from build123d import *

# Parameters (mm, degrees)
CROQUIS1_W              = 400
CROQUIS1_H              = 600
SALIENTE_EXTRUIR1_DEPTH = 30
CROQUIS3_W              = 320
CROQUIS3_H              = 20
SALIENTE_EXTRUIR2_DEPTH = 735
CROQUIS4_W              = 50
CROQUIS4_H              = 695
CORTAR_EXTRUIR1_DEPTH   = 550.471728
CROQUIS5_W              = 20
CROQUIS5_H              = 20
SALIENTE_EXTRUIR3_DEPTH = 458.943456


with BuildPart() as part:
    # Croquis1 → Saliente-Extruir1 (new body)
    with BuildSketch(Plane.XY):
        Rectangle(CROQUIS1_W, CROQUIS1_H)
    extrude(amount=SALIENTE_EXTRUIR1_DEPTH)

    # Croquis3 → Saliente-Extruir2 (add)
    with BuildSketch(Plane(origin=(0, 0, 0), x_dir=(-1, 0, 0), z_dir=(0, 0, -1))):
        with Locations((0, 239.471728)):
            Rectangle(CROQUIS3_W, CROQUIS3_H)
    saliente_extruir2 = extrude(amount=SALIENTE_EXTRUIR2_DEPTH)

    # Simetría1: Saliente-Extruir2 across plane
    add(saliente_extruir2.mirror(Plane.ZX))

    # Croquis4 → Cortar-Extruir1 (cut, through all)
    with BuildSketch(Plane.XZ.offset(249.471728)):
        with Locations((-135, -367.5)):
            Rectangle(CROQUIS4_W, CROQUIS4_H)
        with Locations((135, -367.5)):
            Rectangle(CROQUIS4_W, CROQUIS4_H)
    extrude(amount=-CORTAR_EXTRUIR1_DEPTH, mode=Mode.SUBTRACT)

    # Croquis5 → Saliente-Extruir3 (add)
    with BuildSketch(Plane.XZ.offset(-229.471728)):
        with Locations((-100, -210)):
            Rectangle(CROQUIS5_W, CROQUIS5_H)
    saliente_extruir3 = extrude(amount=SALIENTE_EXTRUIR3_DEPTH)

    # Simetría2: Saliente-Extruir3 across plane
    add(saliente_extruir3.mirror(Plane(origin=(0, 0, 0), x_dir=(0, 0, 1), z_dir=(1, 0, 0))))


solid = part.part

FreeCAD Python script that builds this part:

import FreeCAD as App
import Part
import Sketcher

doc = App.newDocument("Part")
body = doc.addObject("PartDesign::Body", "Body")

sketch1 = body.newObject("Sketcher::SketchObject", "Sketch")
sketch1.AttachmentSupport = (doc.getObject("XY_Plane"), [""])
sketch1.MapMode = "FlatFace"
sketch1.addGeometry([
    Part.LineSegment(App.Vector(-200, 300, 0), App.Vector(-200, -300, 0)),
    Part.LineSegment(App.Vector(-200, -300, 0), App.Vector(200, -300, 0)),
    Part.LineSegment(App.Vector(200, -300, 0), App.Vector(200, 300, 0)),
    Part.LineSegment(App.Vector(200, 300, 0), App.Vector(-200, 300, 0)),
], False)
sketch1.addConstraint([
    Sketcher.Constraint("Coincident", 0, 2, 1, 1),
    Sketcher.Constraint("Coincident", 1, 2, 2, 1),
    Sketcher.Constraint("Coincident", 2, 2, 3, 1),
    Sketcher.Constraint("Coincident", 3, 2, 0, 1),
    Sketcher.Constraint("Vertical", 0),
    Sketcher.Constraint("Horizontal", 1),
    Sketcher.Constraint("Vertical", 2),
    Sketcher.Constraint("Horizontal", 3),
    Sketcher.Constraint("Symmetric", 0, 2, 2, 2, -1, 1),
    Sketcher.Constraint("DistanceX", 1, 1, 1, 2, 400.0),
    Sketcher.Constraint("DistanceY", 0, 2, 0, 1, 600.0),
])
pad1 = body.newObject("PartDesign::Pad", "Pad")
pad1.Profile = sketch1
pad1.Length = 30

sketch2 = body.newObject("Sketcher::SketchObject", "Sketch001")
sketch2.AttachmentSupport = (doc.getObject("XY_Plane"), [""])
sketch2.MapMode = "FlatFace"
sketch2.addGeometry([
    Part.LineSegment(App.Vector(160, 249.471728, 0), App.Vector(160, 229.471728, 0)),
    Part.LineSegment(App.Vector(160, 229.471728, 0), App.Vector(-160, 229.471728, 0)),
    Part.LineSegment(App.Vector(-160, 229.471728, 0), App.Vector(-160, 249.471728, 0)),
    Part.LineSegment(App.Vector(-160, 249.471728, 0), App.Vector(160, 249.471728, 0)),
], False)
sketch2.addConstraint([
    Sketcher.Constraint("Coincident", 0, 2, 1, 1),
    Sketcher.Constraint("Coincident", 1, 2, 2, 1),
    Sketcher.Constraint("Coincident", 2, 2, 3, 1),
    Sketcher.Constraint("Coincident", 3, 2, 0, 1),
    Sketcher.Constraint("Vertical", 0),
    Sketcher.Constraint("Horizontal", 1),
    Sketcher.Constraint("Vertical", 2),
    Sketcher.Constraint("Horizontal", 3),
    Sketcher.Constraint("DistanceX", 1, 2, 1, 1, 320.0),
    Sketcher.Constraint("DistanceY", 0, 2, 0, 1, 20.0),
    Sketcher.Constraint("DistanceX", -1, 1, 0, 2, 160.0),
    Sketcher.Constraint("DistanceY", -1, 1, 0, 2, 229.471728),
])
pad2 = body.newObject("PartDesign::Pad", "Pad001")
pad2.Profile = sketch2
pad2.Length = 735
pad2.Reversed = True
doc.recompute()

mirrored = body.newObject("PartDesign::Mirrored", "Mirrored")
mirrored.Originals = [pad2]
mirrored.MirrorPlane = (doc.getObject("XZ_Plane"), [""])
body.Tip = mirrored

sketch3 = body.newObject("Sketcher::SketchObject", "Sketch002")
sketch3.AttachmentSupport = (doc.getObject("XZ_Plane"), [""])
sketch3.MapMode = "FlatFace"
sketch3.AttachmentOffset = App.Placement(App.Vector(0, 0, 249.471728), App.Rotation())
sketch3.addGeometry([
    Part.LineSegment(App.Vector(-160, -20, 0), App.Vector(-160, -715, 0)),
    Part.LineSegment(App.Vector(-160, -715, 0), App.Vector(-110, -715, 0)),
    Part.LineSegment(App.Vector(-110, -715, 0), App.Vector(-110, -20, 0)),
    Part.LineSegment(App.Vector(-110, -20, 0), App.Vector(-160, -20, 0)),
    Part.LineSegment(App.Vector(110, -20, 0), App.Vector(110, -715, 0)),
    Part.LineSegment(App.Vector(110, -715, 0), App.Vector(160, -715, 0)),
    Part.LineSegment(App.Vector(160, -715, 0), App.Vector(160, -20, 0)),
    Part.LineSegment(App.Vector(160, -20, 0), App.Vector(110, -20, 0)),
], False)
sketch3.addConstraint([
    Sketcher.Constraint("Coincident", 0, 2, 1, 1),
    Sketcher.Constraint("Coincident", 1, 2, 2, 1),
    Sketcher.Constraint("Coincident", 2, 2, 3, 1),
    Sketcher.Constraint("Coincident", 3, 2, 0, 1),
    Sketcher.Constraint("Coincident", 4, 2, 5, 1),
    Sketcher.Constraint("Coincident", 5, 2, 6, 1),
    Sketcher.Constraint("Coincident", 6, 2, 7, 1),
    Sketcher.Constraint("Coincident", 7, 2, 4, 1),
    Sketcher.Constraint("Vertical", 0),
    Sketcher.Constraint("Horizontal", 1),
    Sketcher.Constraint("Vertical", 2),
    Sketcher.Constraint("Horizontal", 3),
    Sketcher.Constraint("Vertical", 4),
    Sketcher.Constraint("Horizontal", 5),
    Sketcher.Constraint("Vertical", 6),
    Sketcher.Constraint("Horizontal", 7),
    Sketcher.Constraint("Symmetric", 1, 2, 4, 2, -2),
    Sketcher.Constraint("Symmetric", 3, 2, 6, 2, -2),
    Sketcher.Constraint("DistanceX", 1, 1, 1, 2, 50.0),
    Sketcher.Constraint("DistanceY", 0, 2, 0, 1, 695.0),
    Sketcher.Constraint("DistanceX", 0, 2, -1, 1, 160.0),
    Sketcher.Constraint("DistanceY", 0, 2, -1, 1, 715.0),
])
pocket1 = body.newObject("PartDesign::Pocket", "Pocket")
pocket1.Profile = sketch3
pocket1.Type = "ThroughAll"

sketch4 = body.newObject("Sketcher::SketchObject", "Sketch003")
sketch4.AttachmentSupport = (doc.getObject("XZ_Plane"), [""])
sketch4.MapMode = "FlatFace"
sketch4.AttachmentOffset = App.Placement(App.Vector(0, 0, -229.471728), App.Rotation())
sketch4.addGeometry([
    Part.LineSegment(App.Vector(-110, -200, 0), App.Vector(-110, -220, 0)),
    Part.LineSegment(App.Vector(-110, -220, 0), App.Vector(-90, -220, 0)),
    Part.LineSegment(App.Vector(-90, -220, 0), App.Vector(-90, -200, 0)),
    Part.LineSegment(App.Vector(-90, -200, 0), App.Vector(-110, -200, 0)),
], False)
sketch4.addConstraint([
    Sketcher.Constraint("Coincident", 0, 2, 1, 1),
    Sketcher.Constraint("Coincident", 1, 2, 2, 1),
    Sketcher.Constraint("Coincident", 2, 2, 3, 1),
    Sketcher.Constraint("Coincident", 3, 2, 0, 1),
    Sketcher.Constraint("Vertical", 0),
    Sketcher.Constraint("Horizontal", 1),
    Sketcher.Constraint("Vertical", 2),
    Sketcher.Constraint("Horizontal", 3),
    Sketcher.Constraint("Equal", 3, 0),
    Sketcher.Constraint("DistanceX", 1, 1, 1, 2, 20.0),
    Sketcher.Constraint("DistanceX", 0, 2, -1, 1, 110.0),
    Sketcher.Constraint("DistanceY", 0, 2, -1, 1, 220.0),
])
pad3 = body.newObject("PartDesign::Pad", "Pad002")
pad3.Profile = sketch4
pad3.Length = 458.943456
doc.recompute()

mirrored2 = body.newObject("PartDesign::Mirrored", "Mirrored001")
mirrored2.Originals = [pad3]
mirrored2.MirrorPlane = (doc.getObject("YZ_Plane"), [""])
body.Tip = mirrored2

doc.recompute()
